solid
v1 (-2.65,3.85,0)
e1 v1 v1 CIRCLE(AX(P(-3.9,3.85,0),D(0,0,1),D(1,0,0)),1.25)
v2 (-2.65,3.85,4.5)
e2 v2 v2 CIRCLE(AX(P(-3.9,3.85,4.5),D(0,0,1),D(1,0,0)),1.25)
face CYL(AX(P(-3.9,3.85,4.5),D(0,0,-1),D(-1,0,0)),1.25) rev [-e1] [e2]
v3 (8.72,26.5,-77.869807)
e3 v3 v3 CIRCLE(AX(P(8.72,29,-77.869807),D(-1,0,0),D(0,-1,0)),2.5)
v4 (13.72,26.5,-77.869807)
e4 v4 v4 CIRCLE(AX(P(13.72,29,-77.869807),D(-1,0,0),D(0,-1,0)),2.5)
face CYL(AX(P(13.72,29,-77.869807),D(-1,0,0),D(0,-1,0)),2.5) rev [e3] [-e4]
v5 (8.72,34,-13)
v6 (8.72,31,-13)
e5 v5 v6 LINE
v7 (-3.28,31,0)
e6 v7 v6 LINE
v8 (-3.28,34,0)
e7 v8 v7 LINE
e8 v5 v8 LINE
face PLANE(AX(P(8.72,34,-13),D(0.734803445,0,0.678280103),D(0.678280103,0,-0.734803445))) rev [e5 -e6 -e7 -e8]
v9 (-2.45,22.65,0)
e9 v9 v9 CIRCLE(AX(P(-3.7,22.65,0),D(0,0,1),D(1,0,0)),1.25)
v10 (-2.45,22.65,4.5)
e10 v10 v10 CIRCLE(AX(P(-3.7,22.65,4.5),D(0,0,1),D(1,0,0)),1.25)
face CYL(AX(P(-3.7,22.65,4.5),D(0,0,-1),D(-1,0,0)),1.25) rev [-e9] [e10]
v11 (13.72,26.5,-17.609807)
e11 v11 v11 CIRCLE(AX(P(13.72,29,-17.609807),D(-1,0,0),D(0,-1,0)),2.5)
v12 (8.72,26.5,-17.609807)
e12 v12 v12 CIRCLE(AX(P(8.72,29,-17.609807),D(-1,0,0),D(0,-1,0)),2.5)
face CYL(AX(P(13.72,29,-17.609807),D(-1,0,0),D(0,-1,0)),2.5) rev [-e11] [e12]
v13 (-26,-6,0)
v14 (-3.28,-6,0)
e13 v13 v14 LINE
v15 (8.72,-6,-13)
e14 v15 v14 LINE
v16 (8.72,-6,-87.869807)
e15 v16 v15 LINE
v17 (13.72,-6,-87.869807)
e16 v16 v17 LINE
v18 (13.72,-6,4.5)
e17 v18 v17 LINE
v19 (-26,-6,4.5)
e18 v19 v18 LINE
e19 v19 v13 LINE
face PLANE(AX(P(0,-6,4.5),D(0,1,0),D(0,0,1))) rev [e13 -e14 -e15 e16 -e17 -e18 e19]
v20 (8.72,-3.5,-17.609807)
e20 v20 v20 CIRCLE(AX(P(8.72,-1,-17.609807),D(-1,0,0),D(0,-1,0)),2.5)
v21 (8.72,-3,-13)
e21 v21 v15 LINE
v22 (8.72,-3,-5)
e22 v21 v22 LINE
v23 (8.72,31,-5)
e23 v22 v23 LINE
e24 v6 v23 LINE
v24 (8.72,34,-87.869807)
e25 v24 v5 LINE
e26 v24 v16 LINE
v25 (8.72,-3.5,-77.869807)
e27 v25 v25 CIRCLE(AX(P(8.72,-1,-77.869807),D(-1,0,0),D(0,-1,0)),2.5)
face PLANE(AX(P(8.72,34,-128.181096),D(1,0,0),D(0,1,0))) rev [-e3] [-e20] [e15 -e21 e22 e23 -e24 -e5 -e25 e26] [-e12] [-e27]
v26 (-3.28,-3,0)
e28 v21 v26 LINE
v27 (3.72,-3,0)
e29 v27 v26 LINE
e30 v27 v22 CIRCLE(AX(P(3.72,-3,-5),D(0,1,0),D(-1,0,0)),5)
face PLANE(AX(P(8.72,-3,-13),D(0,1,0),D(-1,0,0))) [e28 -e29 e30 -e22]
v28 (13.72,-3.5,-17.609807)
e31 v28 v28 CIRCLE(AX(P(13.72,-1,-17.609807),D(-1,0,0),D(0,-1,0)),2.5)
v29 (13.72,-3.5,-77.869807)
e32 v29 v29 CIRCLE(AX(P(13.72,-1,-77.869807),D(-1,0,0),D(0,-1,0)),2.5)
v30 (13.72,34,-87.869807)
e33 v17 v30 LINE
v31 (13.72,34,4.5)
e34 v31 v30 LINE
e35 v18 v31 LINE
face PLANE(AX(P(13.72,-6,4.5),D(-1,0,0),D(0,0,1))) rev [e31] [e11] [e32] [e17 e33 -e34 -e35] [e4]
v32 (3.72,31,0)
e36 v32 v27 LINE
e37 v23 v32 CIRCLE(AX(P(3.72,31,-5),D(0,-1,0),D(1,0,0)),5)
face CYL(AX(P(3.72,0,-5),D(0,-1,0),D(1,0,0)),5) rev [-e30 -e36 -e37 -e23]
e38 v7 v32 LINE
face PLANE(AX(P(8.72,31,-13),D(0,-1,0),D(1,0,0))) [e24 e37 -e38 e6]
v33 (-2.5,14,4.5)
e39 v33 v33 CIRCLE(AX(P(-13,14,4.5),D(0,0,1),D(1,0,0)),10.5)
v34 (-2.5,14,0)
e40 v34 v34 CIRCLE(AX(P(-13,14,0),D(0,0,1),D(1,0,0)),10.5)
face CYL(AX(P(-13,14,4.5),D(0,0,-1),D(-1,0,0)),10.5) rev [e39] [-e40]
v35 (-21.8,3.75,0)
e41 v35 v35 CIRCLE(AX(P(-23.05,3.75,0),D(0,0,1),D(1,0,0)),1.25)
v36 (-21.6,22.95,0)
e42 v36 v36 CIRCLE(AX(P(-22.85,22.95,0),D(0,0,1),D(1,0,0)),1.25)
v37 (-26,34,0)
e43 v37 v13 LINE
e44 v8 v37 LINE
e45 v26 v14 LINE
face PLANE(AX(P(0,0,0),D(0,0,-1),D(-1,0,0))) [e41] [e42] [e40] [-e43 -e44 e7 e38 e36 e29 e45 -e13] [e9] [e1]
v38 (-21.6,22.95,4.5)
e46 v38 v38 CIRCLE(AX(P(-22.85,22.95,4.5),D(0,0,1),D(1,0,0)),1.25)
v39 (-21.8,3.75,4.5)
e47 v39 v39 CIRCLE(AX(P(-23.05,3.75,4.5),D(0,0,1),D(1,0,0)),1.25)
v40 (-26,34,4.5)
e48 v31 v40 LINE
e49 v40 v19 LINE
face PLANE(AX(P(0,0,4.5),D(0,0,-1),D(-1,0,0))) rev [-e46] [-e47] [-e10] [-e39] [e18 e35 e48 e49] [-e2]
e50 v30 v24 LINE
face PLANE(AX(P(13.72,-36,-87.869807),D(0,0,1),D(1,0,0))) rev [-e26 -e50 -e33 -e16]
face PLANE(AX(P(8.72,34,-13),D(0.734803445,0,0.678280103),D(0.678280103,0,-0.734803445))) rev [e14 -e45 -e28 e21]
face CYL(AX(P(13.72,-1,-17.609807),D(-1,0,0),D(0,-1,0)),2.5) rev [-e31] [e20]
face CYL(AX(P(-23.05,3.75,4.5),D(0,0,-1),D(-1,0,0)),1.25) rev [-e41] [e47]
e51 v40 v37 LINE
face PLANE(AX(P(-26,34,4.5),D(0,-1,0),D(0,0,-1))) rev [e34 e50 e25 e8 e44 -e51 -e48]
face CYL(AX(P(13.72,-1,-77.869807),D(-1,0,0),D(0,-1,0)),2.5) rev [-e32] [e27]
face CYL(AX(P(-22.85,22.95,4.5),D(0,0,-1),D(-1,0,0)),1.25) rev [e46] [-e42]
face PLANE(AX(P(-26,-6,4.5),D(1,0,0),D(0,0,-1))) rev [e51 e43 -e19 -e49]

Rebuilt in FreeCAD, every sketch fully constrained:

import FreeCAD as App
import Part
import Sketcher
from FreeCAD import Vector
Q = App.Units.Quantity


def edges_at(feature, points):
    """Names of the edges that pass closest to the given points."""
    edges = feature.Shape.Edges
    near = lambda p: min(range(len(edges)), key=lambda i: edges[i].distToShape(Part.Vertex(*p))[0])
    return sorted({f"Edge{near(p) + 1}" for p in points})

doc = App.newDocument("Part")
body = doc.addObject("PartDesign::Body", "Body")

# Sketch on XY plane
sketch1 = body.newObject("Sketcher::SketchObject", "Sketch")
sketch1.AttachmentSupport = (doc.getObject("XY_Plane"), [""])
sketch1.MapMode = "FlatFace"
sketch1.addGeometry([
    Part.LineSegment(Vector(-26, -6, 0), Vector(13.7, -6, 0)),  # 0
    Part.LineSegment(Vector(13.7, -6, 0), Vector(13.7, 34, 0)),  # 1
    Part.LineSegment(Vector(13.7, 34, 0), Vector(-26, 34, 0)),  # 2
    Part.LineSegment(Vector(-26, 34, 0), Vector(-26, -6, 0)),  # 3
    Part.Circle(Vector(-23.1, 3.8, 0), Vector(0, 0, 1), 1.2),  # 4
    Part.Circle(Vector(-3.9, 3.9, 0), Vector(0, 0, 1), 1.2),  # 5
    Part.Circle(Vector(-22.9, 22.9, 0), Vector(0, 0, 1), 1.2),  # 6
    Part.Circle(Vector(-13, 14, 0), Vector(0, 0, 1), 10.5),  # 7
    Part.Circle(Vector(-3.7, 22.6, 0), Vector(0, 0, 1), 1.2),  # 8
], False)
sketch1.addConstraint([
    Sketcher.Constraint("Coincident", 0, 2, 1, 1),
    Sketcher.Constraint("Coincident", 1, 2, 2, 1),
    Sketcher.Constraint("Coincident", 2, 2, 3, 1),
    Sketcher.Constraint("Coincident", 3, 2, 0, 1),
    Sketcher.Constraint("Horizontal", 0),
    Sketcher.Constraint("Vertical", 1),
    Sketcher.Constraint("Horizontal", 2),
    Sketcher.Constraint("Vertical", 3),
    Sketcher.Constraint("Equal", 4, 5),
    Sketcher.Constraint("Equal", 5, 6),
    Sketcher.Constraint("Equal", 6, 8),
    Sketcher.Constraint("Diameter", 7, Q("21 mm")),
    Sketcher.Constraint("Diameter", 4, Q("2.5 mm")),
    Sketcher.Constraint("DistanceY", 1, 1, 1, 2, Q("40 mm")),
    Sketcher.Constraint("DistanceX", 7, 3, -1, 1, Q("13 mm")),
    Sketcher.Constraint("DistanceY", -1, 1, 7, 3, Q("14 mm")),
    Sketcher.Constraint("DistanceY", 0, 2, -1, 1, Q("6 mm")),
    Sketcher.Constraint("DistanceX", 2, 2, -1, 1, Q("26 mm")),
    Sketcher.Constraint("DistanceX", 0, 1, 0, 2, Q("39.72 mm")),
    Sketcher.Constraint("DistanceX", 5, 3, -1, 1, Q("3.9 mm")),
    Sketcher.Constraint("DistanceX", 8, 3, -1, 1, Q("3.7 mm")),
    Sketcher.Constraint("DistanceY", 4, 3, 5, 3, Q("0.1 mm")),
    Sketcher.Constraint("DistanceX", 4, 3, 6, 3, Q("0.2 mm")),
    Sketcher.Constraint("DistanceY", 4, 3, 6, 3, Q("19.2 mm")),
    Sketcher.Constraint("DistanceY", 5, 3, 8, 3, Q("18.8 mm")),
    Sketcher.Constraint("DistanceX", 4, 3, -1, 1, Q("23.05 mm")),
    Sketcher.Constraint("DistanceY", -1, 1, 4, 3, Q("3.75 mm")),
])
pad1 = body.newObject("PartDesign::Pad", "Pad")
pad1.Profile = sketch1
pad1.Length = 4.5

# Sketch on XY plane
sketch2 = body.newObject("Sketcher::SketchObject", "Sketch001")
sketch2.AttachmentSupport = (doc.getObject("XY_Plane"), [""])
sketch2.MapMode = "FlatFace"
sketch2.addGeometry([
    Part.LineSegment(Vector(14, 34, 0), Vector(14, -6, 0)),
    Part.LineSegment(Vector(14, -6, 0), Vector(9, -6, 0)),
    Part.LineSegment(Vector(9, -6, 0), Vector(9, 34, 0)),
    Part.LineSegment(Vector(9, 34, 0), Vector(14, 34, 0)),
], False)
sketch2.addConstraint([
    Sketcher.Constraint("Coincident", 0, 2, 1, 1),
    Sketcher.Constraint("Coincident", 1, 2, 2, 1),
    Sketcher.Constraint("Coincident", 2, 2, 3, 1),
    Sketcher.Constraint("Coincident", 3, 2, 0, 1),
    Sketcher.Constraint("Vertical", 0),
    Sketcher.Constraint("Horizontal", 1),
    Sketcher.Constraint("Vertical", 2),
    Sketcher.Constraint("Horizontal", 3),
    Sketcher.Constraint("DistanceX", 1, 2, 1, 1, Q("5 mm")),
    Sketcher.Constraint("DistanceY", 0, 2, 0, 1, Q("40 mm")),
    Sketcher.Constraint("DistanceY", 0, 2, -1, 1, Q("6 mm")),
    Sketcher.Constraint("DistanceX", -1, 1, 0, 2, Q("13.72 mm")),
])
pad2 = body.newObject("PartDesign::Pad", "Pad001")
pad2.Profile = sketch2
pad2.Length = 87.869807
pad2.Reversed = True

# Sketch on YZ plane
sketch3 = body.newObject("Sketcher::SketchObject", "Sketch002")
sketch3.AttachmentSupport = (doc.getObject("YZ_Plane"), [""])
sketch3.MapMode = "FlatFace"
sketch3.AttachmentOffset = App.Placement(Vector(0, 0, 8.72), App.Rotation())
sketch3.addGeometry([
    Part.Circle(Vector(29, -77.9, 0), Vector(0, 0, 1), 2.5),
    Part.Circle(Vector(-1, -77.9, 0), Vector(0, 0, 1), 2.5),
    Part.Circle(Vector(-1, -17.6, 0), Vector(0, 0, 1), 2.5),
    Part.Circle(Vector(29, -17.6, 0), Vector(0, 0, 1), 2.5),
], False)
sketch3.addConstraint([
    Sketcher.Constraint("Equal", 0, 1),
    Sketcher.Constraint("Equal", 1, 2),
    Sketcher.Constraint("Equal", 2, 3),
    Sketcher.Constraint("Horizontal", 0, 3, 1, 3),
    Sketcher.Constraint("Horizontal", 2, 3, 3, 3),
    Sketcher.Constraint("Vertical", 1, 3, 2, 3),
    Sketcher.Constraint("Vertical", 0, 3, 3, 3),
    Sketcher.Constraint("Diameter", 0, Q("5 mm")),
    Sketcher.Constraint("DistanceX", -1, 1, 0, 3, Q("29 mm")),
    Sketcher.Constraint("DistanceX", 1, 3, -1, 1, Q("1 mm")),
    Sketcher.Constraint("DistanceY", 1, 3, 2, 3, Q("60.26 mm")),
    Sketcher.Constraint("DistanceY", 0, 3, -1, 1, Q("77.869807 mm")),
])
pocket1 = body.newObject("PartDesign::Pocket", "Pocket")
pocket1.Profile = sketch3
pocket1.Type = "ThroughAll"
pocket1.Reversed = True

# Sketch on XZ plane
sketch4 = body.newObject("Sketcher::SketchObject", "Sketch003")
sketch4.AttachmentSupport = (doc.getObject("XZ_Plane"), [""])
sketch4.MapMode = "FlatFace"
sketch4.AttachmentOffset = App.Placement(Vector(0, 0, -14), App.Rotation())
sketch4.addGeometry([
    Part.LineSegment(Vector(9, -13, 0), Vector(-3, 0, 0)),
    Part.LineSegment(Vector(-3, 0, 0), Vector(9, 0, 0)),
    Part.LineSegment(Vector(9, 0, 0), Vector(9, -13, 0)),
], False)
sketch4.addConstraint([
    Sketcher.Constraint("Coincident", 0, 2, 1, 1),
    Sketcher.Constraint("Coincident", 1, 2, 2, 1),
    Sketcher.Constraint("Coincident", 2, 2, 0, 1),
    Sketcher.Constraint("Horizontal", 1),
    Sketcher.Constraint("Vertical", 2),
    Sketcher.Constraint("PointOnObject", 0, 2, -1),
    Sketcher.Constraint("DistanceX", 1, 1, 1, 2, Q("12 mm")),
    Sketcher.Constraint("DistanceY", 2, 2, 2, 1, Q("13 mm")),
    Sketcher.Constraint("DistanceX", 0, 2, -1, 1, Q("3.28 mm")),
])
pad3 = body.newObject("PartDesign::Pad", "Pad002")
pad3.Profile = sketch4
pad3.Length = 40
pad3.Midplane = True

# Sketch on XY plane
sketch5 = body.newObject("Sketcher::SketchObject", "Sketch004")
sketch5.AttachmentSupport = (doc.getObject("XY_Plane"), [""])
sketch5.MapMode = "FlatFace"
sketch5.addGeometry([
    Part.LineSegment(Vector(9, 31, 0), Vector(9, -3, 0)),
    Part.LineSegment(Vector(9, -3, 0), Vector(-3, -3, 0)),
    Part.LineSegment(Vector(-3, -3, 0), Vector(-3, 31, 0)),
    Part.LineSegment(Vector(-3, 31, 0), Vector(9, 31, 0)),
], False)
sketch5.addConstraint([
    Sketcher.Constraint("Coincident", 0, 2, 1, 1),
    Sketcher.Constraint("Coincident", 1, 2, 2, 1),
    Sketcher.Constraint("Coincident", 2, 2, 3, 1),
    Sketcher.Constraint("Coincident", 3, 2, 0, 1),
    Sketcher.Constraint("Vertical", 0),
    Sketcher.Constraint("Horizontal", 1),
    Sketcher.Constraint("Vertical", 2),
    Sketcher.Constraint("Horizontal", 3),
    Sketcher.Constraint("DistanceX", 1, 2, 1, 1, Q("12 mm")),
    Sketcher.Constraint("DistanceY", 0, 2, 0, 1, Q("34 mm")),
    Sketcher.Constraint("DistanceY", 0, 2, -1, 1, Q("3 mm")),
    Sketcher.Constraint("DistanceX", -1, 1, 0, 2, Q("8.72 mm")),
])
pocket2 = body.newObject("PartDesign::Pocket", "Pocket001")
pocket2.Profile = sketch5
pocket2.Length = 87.869807
doc.recompute()

fillet = body.newObject("PartDesign::Fillet", "Fillet")
fillet.Base = (pocket2, edges_at(pocket2, [(8.72, 14, 0)]))
fillet.Radius = 5

doc.recompute()
